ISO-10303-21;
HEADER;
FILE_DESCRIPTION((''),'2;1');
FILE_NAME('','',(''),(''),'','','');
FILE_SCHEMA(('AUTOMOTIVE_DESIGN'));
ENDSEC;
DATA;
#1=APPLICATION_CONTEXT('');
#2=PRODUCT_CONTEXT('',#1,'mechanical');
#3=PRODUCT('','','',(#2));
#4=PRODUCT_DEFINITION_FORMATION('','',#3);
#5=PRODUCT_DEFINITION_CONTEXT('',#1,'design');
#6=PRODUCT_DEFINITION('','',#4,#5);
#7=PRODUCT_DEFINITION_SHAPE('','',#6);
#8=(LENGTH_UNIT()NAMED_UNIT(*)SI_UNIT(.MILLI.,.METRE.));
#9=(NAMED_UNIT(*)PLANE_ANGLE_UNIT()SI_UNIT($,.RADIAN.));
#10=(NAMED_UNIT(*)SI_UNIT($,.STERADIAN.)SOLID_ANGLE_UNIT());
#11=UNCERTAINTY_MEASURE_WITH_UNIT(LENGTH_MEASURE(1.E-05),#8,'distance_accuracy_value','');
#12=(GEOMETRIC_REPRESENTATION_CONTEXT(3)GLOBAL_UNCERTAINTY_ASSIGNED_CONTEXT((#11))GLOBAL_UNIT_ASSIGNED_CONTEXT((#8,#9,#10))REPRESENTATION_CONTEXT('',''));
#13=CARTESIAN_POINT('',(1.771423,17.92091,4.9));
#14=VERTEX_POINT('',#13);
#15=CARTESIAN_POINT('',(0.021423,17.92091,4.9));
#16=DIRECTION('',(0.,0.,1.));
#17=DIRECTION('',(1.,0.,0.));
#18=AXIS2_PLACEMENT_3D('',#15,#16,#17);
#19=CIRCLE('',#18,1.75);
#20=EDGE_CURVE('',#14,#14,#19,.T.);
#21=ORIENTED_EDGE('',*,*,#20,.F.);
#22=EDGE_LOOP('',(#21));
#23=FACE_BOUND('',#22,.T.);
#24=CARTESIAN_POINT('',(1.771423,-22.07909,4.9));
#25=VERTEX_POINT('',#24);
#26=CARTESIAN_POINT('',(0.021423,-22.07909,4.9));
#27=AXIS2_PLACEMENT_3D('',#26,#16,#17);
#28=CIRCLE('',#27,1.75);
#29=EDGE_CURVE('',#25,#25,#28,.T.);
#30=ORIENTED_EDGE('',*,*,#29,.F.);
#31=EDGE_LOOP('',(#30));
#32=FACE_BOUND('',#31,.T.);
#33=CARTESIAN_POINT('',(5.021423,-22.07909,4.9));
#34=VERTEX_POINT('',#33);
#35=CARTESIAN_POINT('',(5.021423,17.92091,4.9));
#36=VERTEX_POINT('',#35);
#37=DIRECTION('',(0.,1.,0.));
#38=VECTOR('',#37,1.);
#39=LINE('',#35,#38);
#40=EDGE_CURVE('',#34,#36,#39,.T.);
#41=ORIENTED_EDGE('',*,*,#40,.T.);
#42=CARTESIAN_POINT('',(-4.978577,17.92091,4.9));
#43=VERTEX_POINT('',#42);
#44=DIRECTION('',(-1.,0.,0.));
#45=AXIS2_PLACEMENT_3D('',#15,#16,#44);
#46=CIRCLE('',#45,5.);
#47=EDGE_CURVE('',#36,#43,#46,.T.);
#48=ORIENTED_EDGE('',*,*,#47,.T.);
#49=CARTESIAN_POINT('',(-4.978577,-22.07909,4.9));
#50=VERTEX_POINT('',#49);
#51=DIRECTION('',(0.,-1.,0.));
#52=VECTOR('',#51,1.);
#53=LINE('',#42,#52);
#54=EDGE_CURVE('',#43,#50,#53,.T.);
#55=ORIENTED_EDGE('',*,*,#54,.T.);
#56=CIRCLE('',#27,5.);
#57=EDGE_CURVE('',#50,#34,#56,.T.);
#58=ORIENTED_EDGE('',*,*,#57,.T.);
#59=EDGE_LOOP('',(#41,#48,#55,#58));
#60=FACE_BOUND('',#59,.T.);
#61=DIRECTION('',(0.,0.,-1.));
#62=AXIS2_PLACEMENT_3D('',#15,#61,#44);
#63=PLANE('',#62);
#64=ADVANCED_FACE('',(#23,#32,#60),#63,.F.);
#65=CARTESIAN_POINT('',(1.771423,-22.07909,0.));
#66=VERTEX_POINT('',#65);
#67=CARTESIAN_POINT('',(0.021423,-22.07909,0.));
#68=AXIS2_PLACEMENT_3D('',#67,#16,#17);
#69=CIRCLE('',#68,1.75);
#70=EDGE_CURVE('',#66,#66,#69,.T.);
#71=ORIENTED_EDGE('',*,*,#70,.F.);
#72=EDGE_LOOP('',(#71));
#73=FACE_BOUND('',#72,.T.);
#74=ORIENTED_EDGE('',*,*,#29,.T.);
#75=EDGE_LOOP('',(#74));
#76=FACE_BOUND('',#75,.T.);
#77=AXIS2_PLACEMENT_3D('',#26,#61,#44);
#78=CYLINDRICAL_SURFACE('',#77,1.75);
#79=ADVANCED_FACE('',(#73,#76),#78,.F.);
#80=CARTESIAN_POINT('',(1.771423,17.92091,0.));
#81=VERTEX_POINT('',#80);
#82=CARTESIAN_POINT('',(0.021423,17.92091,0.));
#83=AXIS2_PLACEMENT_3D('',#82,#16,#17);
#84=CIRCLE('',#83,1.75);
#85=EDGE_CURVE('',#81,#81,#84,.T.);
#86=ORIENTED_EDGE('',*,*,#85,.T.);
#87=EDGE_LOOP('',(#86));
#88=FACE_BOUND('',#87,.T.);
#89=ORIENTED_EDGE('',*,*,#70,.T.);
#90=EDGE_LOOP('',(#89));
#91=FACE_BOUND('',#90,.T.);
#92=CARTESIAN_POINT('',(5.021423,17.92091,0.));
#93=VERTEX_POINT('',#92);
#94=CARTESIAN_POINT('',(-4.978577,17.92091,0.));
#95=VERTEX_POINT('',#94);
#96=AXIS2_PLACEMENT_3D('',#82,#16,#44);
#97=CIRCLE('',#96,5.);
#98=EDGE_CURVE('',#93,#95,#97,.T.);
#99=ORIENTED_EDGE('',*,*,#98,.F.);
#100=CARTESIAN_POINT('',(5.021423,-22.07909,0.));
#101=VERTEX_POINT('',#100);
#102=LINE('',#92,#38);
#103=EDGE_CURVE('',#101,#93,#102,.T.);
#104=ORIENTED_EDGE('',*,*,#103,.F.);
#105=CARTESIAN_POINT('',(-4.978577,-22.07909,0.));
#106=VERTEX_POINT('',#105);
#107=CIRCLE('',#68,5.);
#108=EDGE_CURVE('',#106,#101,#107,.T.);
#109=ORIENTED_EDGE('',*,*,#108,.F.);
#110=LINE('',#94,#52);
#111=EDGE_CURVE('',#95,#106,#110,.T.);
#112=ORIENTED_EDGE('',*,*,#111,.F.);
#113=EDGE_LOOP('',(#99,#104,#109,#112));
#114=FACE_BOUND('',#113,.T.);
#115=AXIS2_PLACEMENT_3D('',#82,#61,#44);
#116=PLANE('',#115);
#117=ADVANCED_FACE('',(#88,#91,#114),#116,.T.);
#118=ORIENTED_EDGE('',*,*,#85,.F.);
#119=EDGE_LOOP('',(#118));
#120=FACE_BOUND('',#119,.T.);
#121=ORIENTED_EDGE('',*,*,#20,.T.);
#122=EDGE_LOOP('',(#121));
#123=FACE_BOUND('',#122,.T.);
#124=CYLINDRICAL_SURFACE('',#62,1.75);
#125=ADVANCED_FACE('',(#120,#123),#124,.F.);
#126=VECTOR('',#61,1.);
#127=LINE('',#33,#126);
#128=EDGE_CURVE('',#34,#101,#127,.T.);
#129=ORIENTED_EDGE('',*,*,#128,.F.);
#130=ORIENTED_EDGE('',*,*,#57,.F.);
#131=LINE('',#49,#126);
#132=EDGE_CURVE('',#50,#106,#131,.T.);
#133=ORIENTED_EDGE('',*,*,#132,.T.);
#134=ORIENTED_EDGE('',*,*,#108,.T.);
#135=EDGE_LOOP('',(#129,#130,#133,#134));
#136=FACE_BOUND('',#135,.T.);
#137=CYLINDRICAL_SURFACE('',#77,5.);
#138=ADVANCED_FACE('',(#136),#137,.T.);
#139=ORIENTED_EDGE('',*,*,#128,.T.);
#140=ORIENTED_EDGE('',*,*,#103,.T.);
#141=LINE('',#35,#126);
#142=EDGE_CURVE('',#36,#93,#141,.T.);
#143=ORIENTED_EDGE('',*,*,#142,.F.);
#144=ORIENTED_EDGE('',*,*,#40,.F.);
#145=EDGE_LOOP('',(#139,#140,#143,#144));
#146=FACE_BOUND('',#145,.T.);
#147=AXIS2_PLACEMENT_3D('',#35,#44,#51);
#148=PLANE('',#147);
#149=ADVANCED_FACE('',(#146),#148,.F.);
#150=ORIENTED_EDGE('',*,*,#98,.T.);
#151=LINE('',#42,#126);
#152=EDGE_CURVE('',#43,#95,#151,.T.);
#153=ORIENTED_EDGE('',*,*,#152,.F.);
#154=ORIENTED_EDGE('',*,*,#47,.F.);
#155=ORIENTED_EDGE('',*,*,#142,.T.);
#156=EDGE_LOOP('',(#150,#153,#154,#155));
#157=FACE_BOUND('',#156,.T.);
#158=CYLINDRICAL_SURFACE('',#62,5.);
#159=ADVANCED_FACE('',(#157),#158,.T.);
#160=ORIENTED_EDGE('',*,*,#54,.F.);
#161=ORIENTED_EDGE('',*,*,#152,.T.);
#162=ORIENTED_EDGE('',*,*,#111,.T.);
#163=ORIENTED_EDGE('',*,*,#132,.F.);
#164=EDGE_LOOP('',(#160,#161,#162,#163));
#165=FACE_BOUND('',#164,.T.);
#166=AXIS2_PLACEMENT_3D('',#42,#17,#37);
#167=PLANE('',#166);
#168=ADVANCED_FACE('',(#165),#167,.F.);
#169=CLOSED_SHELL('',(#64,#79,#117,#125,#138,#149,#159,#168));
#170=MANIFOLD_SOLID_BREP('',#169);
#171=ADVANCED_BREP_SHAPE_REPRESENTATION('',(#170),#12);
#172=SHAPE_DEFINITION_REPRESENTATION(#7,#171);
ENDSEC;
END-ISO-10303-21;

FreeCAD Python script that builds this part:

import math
import FreeCAD as App
import Part
import Sketcher

V = App.Vector
Q = App.Units.Quantity

doc = App.newDocument("Part")
body = doc.addObject("PartDesign::Body", "Body")

# Sketch on XY plane
sketch1 = doc.addObject("Sketcher::SketchObject", "Sketch")
body.addObject(sketch1)
sketch1.AttachmentSupport = (doc.XY_Plane, [""])
sketch1.MapMode = "FlatFace"
sketch1.addGeometry([
    Part.LineSegment(V(-4.978577, 17.92091, 0), V(-4.978577, -22.07909, 0)),  # 0
    Part.ArcOfCircle(Part.Circle(V(0.021423, -22.07909, 0), V(0, 0, 1), 5), math.radians(180), math.radians(360)),  # 1
    Part.LineSegment(V(5.021423, -22.07909, 0), V(5.021423, 17.92091, 0)),  # 2
    Part.ArcOfCircle(Part.Circle(V(0.021423, 17.92091, 0), V(0, 0, 1), 5), math.radians(0), math.radians(180)),  # 3
    Part.Circle(V(0.021423, -22.07909, 0), V(0, 0, 1), 1.75),  # 4
    Part.Circle(V(0.021423, 17.92091, 0), V(0, 0, 1), 1.75),  # 5
], False)
sketch1.addConstraint([
    Sketcher.Constraint("Tangent", 0, 2, 1, 1),
    Sketcher.Constraint("Tangent", 1, 2, 2, 1),
    Sketcher.Constraint("Tangent", 2, 2, 3, 1),
    Sketcher.Constraint("Tangent", 3, 2, 0, 1),
    Sketcher.Constraint("Vertical", 0),
    Sketcher.Constraint("Vertical", 2),
    Sketcher.Constraint("Coincident", 4, 3, 1, 3),
    Sketcher.Constraint("Coincident", 5, 3, 3, 3),
    Sketcher.Constraint("Equal", 4, 5),
    Sketcher.Constraint("Radius", 1, Q("5 mm")),
    Sketcher.Constraint("Diameter", 4, Q("3.5 mm")),
    Sketcher.Constraint("DistanceY", 0, 2, 0, 1, Q("40 mm")),
    Sketcher.Constraint("DistanceY", 1, 3, -1, 1, Q("22.07909 mm")),
    Sketcher.Constraint("DistanceX", -1, 1, 1, 3, Q("0.021423 mm")),
])
pad1 = doc.addObject("PartDesign::Pad", "Pad")
body.addObject(pad1)
pad1.Profile = sketch1
pad1.Length = 4.9

doc.recompute()
